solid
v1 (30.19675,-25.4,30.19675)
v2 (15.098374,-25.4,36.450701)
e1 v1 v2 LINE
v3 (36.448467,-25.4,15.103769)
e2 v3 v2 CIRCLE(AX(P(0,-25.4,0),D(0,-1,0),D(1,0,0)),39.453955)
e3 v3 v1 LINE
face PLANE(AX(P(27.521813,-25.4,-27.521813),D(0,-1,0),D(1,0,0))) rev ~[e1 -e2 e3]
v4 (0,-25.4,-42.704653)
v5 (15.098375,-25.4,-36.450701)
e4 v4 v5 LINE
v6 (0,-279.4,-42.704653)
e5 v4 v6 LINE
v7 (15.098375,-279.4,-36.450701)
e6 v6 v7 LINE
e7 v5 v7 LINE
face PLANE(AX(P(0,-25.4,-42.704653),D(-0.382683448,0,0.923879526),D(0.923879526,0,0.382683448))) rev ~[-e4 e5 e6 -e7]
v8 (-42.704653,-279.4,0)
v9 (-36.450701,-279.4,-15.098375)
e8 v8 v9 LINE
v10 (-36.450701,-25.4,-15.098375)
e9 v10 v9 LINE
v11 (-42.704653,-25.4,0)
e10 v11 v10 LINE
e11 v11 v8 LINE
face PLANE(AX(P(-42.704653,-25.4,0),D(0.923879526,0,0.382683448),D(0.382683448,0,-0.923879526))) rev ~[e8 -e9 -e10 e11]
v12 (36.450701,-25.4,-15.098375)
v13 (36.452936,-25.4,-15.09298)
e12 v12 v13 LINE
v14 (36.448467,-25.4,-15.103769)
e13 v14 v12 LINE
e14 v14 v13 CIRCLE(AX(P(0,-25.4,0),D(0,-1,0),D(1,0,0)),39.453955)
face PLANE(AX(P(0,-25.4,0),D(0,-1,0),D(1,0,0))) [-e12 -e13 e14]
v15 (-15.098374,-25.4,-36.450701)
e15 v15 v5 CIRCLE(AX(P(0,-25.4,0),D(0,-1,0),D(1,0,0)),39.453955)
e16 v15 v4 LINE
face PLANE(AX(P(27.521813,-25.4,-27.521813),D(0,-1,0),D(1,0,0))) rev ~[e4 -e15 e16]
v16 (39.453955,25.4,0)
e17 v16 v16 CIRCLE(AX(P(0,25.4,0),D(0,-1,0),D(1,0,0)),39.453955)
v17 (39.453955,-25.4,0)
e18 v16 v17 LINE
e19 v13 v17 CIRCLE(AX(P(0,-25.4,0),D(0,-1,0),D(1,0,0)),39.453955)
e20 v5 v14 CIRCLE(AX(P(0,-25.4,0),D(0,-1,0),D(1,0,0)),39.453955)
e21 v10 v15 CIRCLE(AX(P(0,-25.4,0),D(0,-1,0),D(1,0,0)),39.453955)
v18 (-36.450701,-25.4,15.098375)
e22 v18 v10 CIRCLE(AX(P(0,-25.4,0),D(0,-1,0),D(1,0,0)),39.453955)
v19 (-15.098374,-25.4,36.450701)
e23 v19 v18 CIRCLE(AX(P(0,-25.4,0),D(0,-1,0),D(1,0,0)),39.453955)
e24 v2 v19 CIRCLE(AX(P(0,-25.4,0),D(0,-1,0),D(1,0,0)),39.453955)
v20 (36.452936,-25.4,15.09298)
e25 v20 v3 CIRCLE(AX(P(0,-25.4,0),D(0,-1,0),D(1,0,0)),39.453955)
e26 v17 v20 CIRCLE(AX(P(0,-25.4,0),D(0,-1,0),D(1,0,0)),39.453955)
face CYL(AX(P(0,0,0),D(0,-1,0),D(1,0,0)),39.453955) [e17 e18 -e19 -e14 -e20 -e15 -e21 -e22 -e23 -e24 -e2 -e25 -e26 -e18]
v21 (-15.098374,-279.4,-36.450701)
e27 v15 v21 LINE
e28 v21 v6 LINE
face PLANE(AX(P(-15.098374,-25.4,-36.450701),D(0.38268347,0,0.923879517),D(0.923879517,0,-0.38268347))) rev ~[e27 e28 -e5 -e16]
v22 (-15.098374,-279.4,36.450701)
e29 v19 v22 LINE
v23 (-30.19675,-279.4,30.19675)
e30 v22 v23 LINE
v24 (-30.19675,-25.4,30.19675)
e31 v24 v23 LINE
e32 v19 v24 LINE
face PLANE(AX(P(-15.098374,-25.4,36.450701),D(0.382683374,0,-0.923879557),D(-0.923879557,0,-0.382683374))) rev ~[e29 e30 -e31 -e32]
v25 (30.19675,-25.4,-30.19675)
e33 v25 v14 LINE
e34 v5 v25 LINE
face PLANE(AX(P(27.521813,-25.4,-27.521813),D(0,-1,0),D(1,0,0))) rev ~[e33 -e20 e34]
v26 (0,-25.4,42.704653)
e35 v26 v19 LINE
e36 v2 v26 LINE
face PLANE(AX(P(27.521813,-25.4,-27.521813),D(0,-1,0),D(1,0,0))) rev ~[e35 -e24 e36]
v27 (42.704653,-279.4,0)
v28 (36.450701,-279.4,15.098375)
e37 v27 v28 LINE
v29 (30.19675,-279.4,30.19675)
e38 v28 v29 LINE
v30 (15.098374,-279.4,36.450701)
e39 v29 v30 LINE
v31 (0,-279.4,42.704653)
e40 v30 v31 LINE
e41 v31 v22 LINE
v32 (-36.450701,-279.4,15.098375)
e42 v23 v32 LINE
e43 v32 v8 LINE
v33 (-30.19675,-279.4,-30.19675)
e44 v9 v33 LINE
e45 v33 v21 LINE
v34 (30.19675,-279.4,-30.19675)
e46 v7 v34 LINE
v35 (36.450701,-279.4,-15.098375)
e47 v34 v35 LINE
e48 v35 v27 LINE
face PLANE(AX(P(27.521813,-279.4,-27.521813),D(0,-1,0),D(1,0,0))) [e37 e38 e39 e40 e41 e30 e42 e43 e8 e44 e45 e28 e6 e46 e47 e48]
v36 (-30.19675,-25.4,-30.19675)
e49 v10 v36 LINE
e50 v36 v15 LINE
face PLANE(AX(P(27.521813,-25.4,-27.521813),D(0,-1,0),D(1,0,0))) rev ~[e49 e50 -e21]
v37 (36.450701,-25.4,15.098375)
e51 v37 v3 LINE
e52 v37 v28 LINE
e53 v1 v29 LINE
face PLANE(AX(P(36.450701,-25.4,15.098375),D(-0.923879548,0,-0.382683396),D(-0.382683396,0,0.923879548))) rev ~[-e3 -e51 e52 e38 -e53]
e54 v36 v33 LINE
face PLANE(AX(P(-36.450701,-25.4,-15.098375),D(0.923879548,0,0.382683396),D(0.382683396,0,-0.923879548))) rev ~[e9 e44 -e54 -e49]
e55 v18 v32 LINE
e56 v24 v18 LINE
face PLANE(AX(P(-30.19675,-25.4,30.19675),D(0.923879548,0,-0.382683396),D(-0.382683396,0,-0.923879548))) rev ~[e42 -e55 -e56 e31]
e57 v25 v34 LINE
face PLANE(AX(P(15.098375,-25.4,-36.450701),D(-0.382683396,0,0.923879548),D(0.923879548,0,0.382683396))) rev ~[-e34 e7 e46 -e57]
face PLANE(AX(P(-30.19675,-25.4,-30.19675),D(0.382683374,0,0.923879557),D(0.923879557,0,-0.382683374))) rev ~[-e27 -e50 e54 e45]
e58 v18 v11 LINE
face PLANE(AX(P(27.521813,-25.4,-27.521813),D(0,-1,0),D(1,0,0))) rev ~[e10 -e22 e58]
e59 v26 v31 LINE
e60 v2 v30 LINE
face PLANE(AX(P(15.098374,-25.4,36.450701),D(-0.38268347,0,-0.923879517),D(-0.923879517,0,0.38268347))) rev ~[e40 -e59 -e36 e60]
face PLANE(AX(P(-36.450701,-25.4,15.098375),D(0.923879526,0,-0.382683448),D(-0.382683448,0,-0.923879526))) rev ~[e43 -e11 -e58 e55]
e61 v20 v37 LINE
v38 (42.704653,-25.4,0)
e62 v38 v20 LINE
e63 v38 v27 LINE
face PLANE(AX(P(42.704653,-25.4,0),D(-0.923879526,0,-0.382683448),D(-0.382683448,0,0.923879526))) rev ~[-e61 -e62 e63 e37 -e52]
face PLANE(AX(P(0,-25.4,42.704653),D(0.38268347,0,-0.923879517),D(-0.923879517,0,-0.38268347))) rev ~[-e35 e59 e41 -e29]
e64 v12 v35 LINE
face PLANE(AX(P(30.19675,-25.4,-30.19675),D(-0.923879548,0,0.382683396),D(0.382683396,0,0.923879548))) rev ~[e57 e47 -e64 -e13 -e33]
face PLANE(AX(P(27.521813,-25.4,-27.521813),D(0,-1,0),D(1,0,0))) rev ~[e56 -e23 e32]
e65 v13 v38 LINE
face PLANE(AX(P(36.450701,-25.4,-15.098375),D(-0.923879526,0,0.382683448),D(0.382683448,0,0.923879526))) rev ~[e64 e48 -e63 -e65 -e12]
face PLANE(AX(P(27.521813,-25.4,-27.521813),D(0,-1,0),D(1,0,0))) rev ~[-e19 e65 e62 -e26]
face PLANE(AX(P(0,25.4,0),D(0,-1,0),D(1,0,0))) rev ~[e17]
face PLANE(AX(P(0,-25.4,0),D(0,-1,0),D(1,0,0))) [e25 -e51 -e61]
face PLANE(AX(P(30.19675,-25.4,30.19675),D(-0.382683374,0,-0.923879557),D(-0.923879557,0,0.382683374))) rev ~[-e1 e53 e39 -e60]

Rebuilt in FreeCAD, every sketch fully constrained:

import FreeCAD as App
import Part
import Sketcher
Q = App.Units.Quantity

doc = App.newDocument("Part")
params = doc.addObject("Spreadsheet::Sheet", "Params")
for row, (alias, value) in enumerate([
    ("pad1_length", "2 in"),
    ("pad2_length", "10 in"),
], start=1):
    params.set(f"A{row}", alias)
    params.set(f"B{row}", "=" + value)
    params.setAlias(f"B{row}", alias)

body = doc.addObject("PartDesign::Body", "Body")

# Sketch on XZ plane
sketch1 = doc.addObject("Sketcher::SketchObject", "Sketch")
body.addObject(sketch1)
sketch1.AttachmentSupport = (doc.XZ_Plane, [""])
sketch1.MapMode = "FlatFace"
sketch1.addGeometry(Part.Circle(App.Vector(0, 0, 0), App.Vector(0, 0, 1), 39), False)
sketch1.addConstraint([
    Sketcher.Constraint("Coincident", 0, 3, -1, 1),
    Sketcher.Constraint("Diameter", 0, Q("78.90791 mm")),
])
pad1 = doc.addObject("PartDesign::Pad", "Pad")
body.addObject(pad1)
pad1.Profile = sketch1
pad1.setExpression("Length", "Params.pad1_length")
pad1.Midplane = True

# Sketch on XZ plane
sketch2 = doc.addObject("Sketcher::SketchObject", "Sketch001")
body.addObject(sketch2)
sketch2.AttachmentSupport = (doc.XZ_Plane, [""])
sketch2.MapMode = "FlatFace"
sketch2.AttachmentOffset = App.Placement(App.Vector(0, 0, 1 * 25.4), App.Rotation())
sketch2.addGeometry([
    Part.LineSegment(App.Vector(15, -36, 0), App.Vector(30, -30, 0)),  # 0
    Part.LineSegment(App.Vector(30, -30, 0), App.Vector(36, -15, 0)),  # 1
    Part.LineSegment(App.Vector(36, -15, 0), App.Vector(43, 0, 0)),  # 2
    Part.LineSegment(App.Vector(43, 0, 0), App.Vector(36, 15, 0)),  # 3
    Part.LineSegment(App.Vector(36, 15, 0), App.Vector(30, 30, 0)),  # 4
    Part.LineSegment(App.Vector(30, 30, 0), App.Vector(15, 36, 0)),  # 5
    Part.LineSegment(App.Vector(15, 36, 0), App.Vector(0, 43, 0)),  # 6
    Part.LineSegment(App.Vector(0, 43, 0), App.Vector(-15, 36, 0)),  # 7
    Part.LineSegment(App.Vector(-15, 36, 0), App.Vector(-30, 30, 0)),  # 8
    Part.LineSegment(App.Vector(-30, 30, 0), App.Vector(-36, 15, 0)),  # 9
    Part.LineSegment(App.Vector(-36, 15, 0), App.Vector(-43, 0, 0)),  # 10
    Part.LineSegment(App.Vector(-43, 0, 0), App.Vector(-36, -15, 0)),  # 11
    Part.LineSegment(App.Vector(-36, -15, 0), App.Vector(-30, -30, 0)),  # 12
    Part.LineSegment(App.Vector(-30, -30, 0), App.Vector(-15, -36, 0)),  # 13
    Part.LineSegment(App.Vector(-15, -36, 0), App.Vector(0, -43, 0)),  # 14
    Part.LineSegment(App.Vector(0, -43, 0), App.Vector(15, -36, 0)),  # 15
], False)
sketch2.addConstraint([
    Sketcher.Constraint("Coincident", 0, 2, 1, 1),
    Sketcher.Constraint("Coincident", 1, 2, 2, 1),
    Sketcher.Constraint("Coincident", 2, 2, 3, 1),
    Sketcher.Constraint("Coincident", 3, 2, 4, 1),
    Sketcher.Constraint("Coincident", 4, 2, 5, 1),
    Sketcher.Constraint("Coincident", 5, 2, 6, 1),
    Sketcher.Constraint("Coincident", 6, 2, 7, 1),
    Sketcher.Constraint("Coincident", 7, 2, 8, 1),
    Sketcher.Constraint("Coincident", 8, 2, 9, 1),
    Sketcher.Constraint("Coincident", 9, 2, 10, 1),
    Sketcher.Constraint("Coincident", 10, 2, 11, 1),
    Sketcher.Constraint("Coincident", 11, 2, 12, 1),
    Sketcher.Constraint("Coincident", 12, 2, 13, 1),
    Sketcher.Constraint("Coincident", 13, 2, 14, 1),
    Sketcher.Constraint("Coincident", 14, 2, 15, 1),
    Sketcher.Constraint("Coincident", 15, 2, 0, 1),
    Sketcher.Constraint("Symmetric", 0, 2, 8, 2, -1, 1),
    Sketcher.Constraint("Symmetric", 1, 2, 9, 2, -1, 1),
    Sketcher.Constraint("Symmetric", 2, 2, 10, 2, -1, 1),
    Sketcher.Constraint("Symmetric", 3, 2, 11, 2, -1, 1),
    Sketcher.Constraint("Symmetric", 4, 2, 12, 2, -1, 1),
    Sketcher.Constraint("Symmetric", 5, 2, 13, 2, -1, 1),
    Sketcher.Constraint("Symmetric", 6, 2, 14, 2, -1, 1),
    Sketcher.Constraint("Symmetric", 7, 2, 15, 2, -1, 1),
    Sketcher.Constraint("Symmetric", 5, 2, 7, 2, -2),
    Sketcher.Constraint("Symmetric", 4, 2, 8, 2, -2),
    Sketcher.Constraint("Symmetric", 3, 2, 9, 2, -2),
    Sketcher.Constraint("PointOnObject", 2, 2, -1),
    Sketcher.Constraint("PointOnObject", 6, 2, -2),
    Sketcher.Constraint("Parallel", 1, 2),
    Sketcher.Constraint("Perpendicular", 0, 3),
    Sketcher.Constraint("Parallel", 5, 6),
    Sketcher.Constraint("Equal", 0, 1),
    Sketcher.Constraint("Equal", 1, 2),
    Sketcher.Constraint("Equal", 5, 6),
    Sketcher.Constraint("Angle", 0, Q("22.499998 deg")),
    Sketcher.Constraint("Distance", 0, Q("0.6434001 in")),
])
pad2 = doc.addObject("PartDesign::Pad", "Pad001")
body.addObject(pad2)
pad2.Profile = sketch2
pad2.setExpression("Length", "Params.pad2_length")

doc.recompute()
